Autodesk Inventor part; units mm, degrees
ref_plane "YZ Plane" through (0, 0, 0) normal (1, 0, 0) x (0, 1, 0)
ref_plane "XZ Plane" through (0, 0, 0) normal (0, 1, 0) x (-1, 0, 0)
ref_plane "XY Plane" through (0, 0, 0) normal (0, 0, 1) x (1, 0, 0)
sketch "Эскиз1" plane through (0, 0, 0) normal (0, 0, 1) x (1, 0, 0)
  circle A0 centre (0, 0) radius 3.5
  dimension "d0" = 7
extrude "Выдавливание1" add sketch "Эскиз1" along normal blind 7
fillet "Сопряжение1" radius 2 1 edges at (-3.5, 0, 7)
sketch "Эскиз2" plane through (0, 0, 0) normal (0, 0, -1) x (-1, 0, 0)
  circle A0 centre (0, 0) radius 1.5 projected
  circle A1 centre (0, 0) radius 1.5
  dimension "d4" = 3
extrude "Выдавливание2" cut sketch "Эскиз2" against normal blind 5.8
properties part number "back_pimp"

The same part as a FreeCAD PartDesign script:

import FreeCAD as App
import Part
import Sketcher

V = App.Vector


def edges_at(feature, points):
    """Names of the edges that pass closest to the given points."""
    edges = feature.Shape.Edges
    near = lambda p: min(range(len(edges)), key=lambda i: edges[i].distToShape(Part.Vertex(*p))[0])
    return sorted({f"Edge{near(p) + 1}" for p in points})

doc = App.newDocument("Part")
body = doc.addObject("PartDesign::Body", "Body")

sketch1 = body.newObject("Sketcher::SketchObject", "Sketch")
sketch1.AttachmentSupport = (doc.getObject("XY_Plane"), [""])
sketch1.MapMode = "FlatFace"
sketch1.addGeometry(Part.Circle(V(0, 0, 0), V(0, 0, 1), 3.5), False)
sketch1.addConstraint([
    Sketcher.Constraint("Coincident", 0, 3, -1, 1),
    Sketcher.Constraint("Diameter", 0, 7.0),
])
pad1 = body.newObject("PartDesign::Pad", "Pad")
pad1.Profile = sketch1
pad1.Length = 7
doc.recompute()

fillet = body.newObject("PartDesign::Fillet", "Fillet")
fillet.Base = (pad1, edges_at(pad1, [(-3.5, 0, 7)]))
fillet.Radius = 2

sketch2 = body.newObject("Sketcher::SketchObject", "Sketch001")
sketch2.AttachmentSupport = (doc.getObject("XY_Plane"), [""])
sketch2.MapMode = "FlatFace"
sketch2.addGeometry(Part.Circle(V(0, 0, 0), V(0, 0, 1), 1.5), False)
sketch2.addConstraint([
    Sketcher.Constraint("Coincident", 0, 3, -1, 1),
    Sketcher.Constraint("Diameter", 0, 3.0),
])
pocket1 = body.newObject("PartDesign::Pocket", "Pocket")
pocket1.Profile = sketch2
pocket1.Length = 5.8
pocket1.Reversed = True

doc.recompute()
